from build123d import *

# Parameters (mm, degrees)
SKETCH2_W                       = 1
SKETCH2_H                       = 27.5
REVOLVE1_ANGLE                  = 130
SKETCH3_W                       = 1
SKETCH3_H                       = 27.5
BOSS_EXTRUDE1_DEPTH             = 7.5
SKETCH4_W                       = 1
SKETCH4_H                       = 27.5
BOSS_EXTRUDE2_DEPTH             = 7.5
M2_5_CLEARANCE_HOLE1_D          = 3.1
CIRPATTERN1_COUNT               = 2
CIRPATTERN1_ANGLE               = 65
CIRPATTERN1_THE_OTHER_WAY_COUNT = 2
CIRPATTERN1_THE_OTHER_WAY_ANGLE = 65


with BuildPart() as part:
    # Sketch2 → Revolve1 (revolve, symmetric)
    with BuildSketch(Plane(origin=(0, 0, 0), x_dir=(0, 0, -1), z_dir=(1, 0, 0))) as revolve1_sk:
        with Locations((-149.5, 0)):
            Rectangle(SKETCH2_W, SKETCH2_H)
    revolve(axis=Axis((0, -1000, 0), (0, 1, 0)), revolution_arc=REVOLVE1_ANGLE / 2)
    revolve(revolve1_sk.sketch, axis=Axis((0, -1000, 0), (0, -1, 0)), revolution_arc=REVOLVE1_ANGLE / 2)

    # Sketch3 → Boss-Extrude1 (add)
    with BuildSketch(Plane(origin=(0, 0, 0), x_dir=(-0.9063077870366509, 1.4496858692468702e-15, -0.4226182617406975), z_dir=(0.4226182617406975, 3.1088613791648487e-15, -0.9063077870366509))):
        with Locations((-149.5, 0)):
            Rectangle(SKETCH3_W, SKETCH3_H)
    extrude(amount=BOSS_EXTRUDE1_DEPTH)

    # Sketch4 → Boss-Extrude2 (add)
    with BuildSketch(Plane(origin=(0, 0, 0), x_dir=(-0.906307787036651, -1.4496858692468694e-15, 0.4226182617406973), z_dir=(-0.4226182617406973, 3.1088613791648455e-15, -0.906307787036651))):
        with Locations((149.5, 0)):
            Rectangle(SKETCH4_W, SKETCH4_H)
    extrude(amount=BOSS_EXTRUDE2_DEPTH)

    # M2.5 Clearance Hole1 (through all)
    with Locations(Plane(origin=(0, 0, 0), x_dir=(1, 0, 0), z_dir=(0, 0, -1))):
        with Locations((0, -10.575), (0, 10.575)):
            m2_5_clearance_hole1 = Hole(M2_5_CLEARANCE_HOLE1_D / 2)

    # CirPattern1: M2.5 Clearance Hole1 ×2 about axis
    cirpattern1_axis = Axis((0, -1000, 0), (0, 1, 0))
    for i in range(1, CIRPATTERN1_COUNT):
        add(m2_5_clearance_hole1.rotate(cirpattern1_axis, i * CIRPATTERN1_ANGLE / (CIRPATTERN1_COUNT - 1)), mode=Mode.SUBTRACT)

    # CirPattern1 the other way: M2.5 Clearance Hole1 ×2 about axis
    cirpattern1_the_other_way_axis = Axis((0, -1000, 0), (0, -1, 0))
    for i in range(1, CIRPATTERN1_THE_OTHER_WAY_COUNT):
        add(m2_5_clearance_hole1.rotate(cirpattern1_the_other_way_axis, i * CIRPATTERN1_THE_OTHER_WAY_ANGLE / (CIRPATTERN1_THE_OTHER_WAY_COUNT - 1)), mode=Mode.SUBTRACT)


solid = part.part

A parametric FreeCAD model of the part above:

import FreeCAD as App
import Part
import Sketcher


def add_polygon(sketch, points):
    """Adds a closed chain of lines whose ends are joined by coincident constraints."""
    first, n = sketch.GeometryCount, len(points)
    for a, b in zip(points, points[1:] + points[:1]):
        sketch.addGeometry(Part.LineSegment(App.Vector(*a, 0), App.Vector(*b, 0)), False)
    for i in range(n):
        sketch.addConstraint(Sketcher.Constraint("Coincident", first + i, 2, first + (i + 1) % n, 1))

doc = App.newDocument("Part")
body = doc.addObject("PartDesign::Body", "Body")

sketch1 = body.newObject("Sketcher::SketchObject", "Sketch")
sketch1.AttachmentSupport = (doc.getObject("YZ_Plane"), [""])
sketch1.MapMode = "FlatFace"
add_polygon(sketch1, [(13.8, 150), (-13.8, 150), (-13.8, 149), (13.8, 149)])
sketch1.addConstraint([
    Sketcher.Constraint("Horizontal", 0),
    Sketcher.Constraint("Vertical", 1),
    Sketcher.Constraint("Horizontal", 2),
    Sketcher.Constraint("Vertical", 3),
    Sketcher.Constraint("DistanceY", 1, 2, 1, 1, 1.0),
    Sketcher.Constraint("DistanceX", 0, 2, 0, 1, 27.5),
    Sketcher.Constraint("DistanceY", -1, 1, 0, 2, 150.0),
    Sketcher.Constraint("DistanceX", 0, 2, -1, 1, 13.75),
])
revolution = body.newObject("PartDesign::Revolution", "Revolution")
revolution.Profile = sketch1
revolution.ReferenceAxis = (sketch1, ["H_Axis"])
revolution.Angle = 65

sketch2 = body.newObject("Sketcher::SketchObject", "Sketch001")
sketch2.AttachmentSupport = (doc.getObject("YZ_Plane"), [""])
sketch2.MapMode = "FlatFace"
add_polygon(sketch2, [(13.8, 150), (-13.8, 150), (-13.8, 149), (13.8, 149)])
sketch2.addConstraint([
    Sketcher.Constraint("Horizontal", 0),
    Sketcher.Constraint("Vertical", 1),
    Sketcher.Constraint("Horizontal", 2),
    Sketcher.Constraint("Vertical", 3),
    Sketcher.Constraint("DistanceY", 1, 2, 1, 1, 1.0),
    Sketcher.Constraint("DistanceX", 0, 2, 0, 1, 27.5),
    Sketcher.Constraint("DistanceY", -1, 1, 0, 2, 150.0),
    Sketcher.Constraint("DistanceX", 0, 2, -1, 1, 13.75),
])
revolution2 = body.newObject("PartDesign::Revolution", "Revolution001")
revolution2.Profile = sketch2
revolution2.ReferenceAxis = (sketch2, ["H_Axis"])
revolution2.Angle = 65
revolution2.Reversed = True

sketch3 = body.newObject("Sketcher::SketchObject", "Sketch002")
sketch3.Placement = App.Placement(App.Vector(0, 0, 0), App.Rotation(App.Vector(-0.906307787, 0, -0.422618262), App.Vector(0, 1, 0), App.Vector(0.422618262, 0, -0.906307787), "ZXY"))
add_polygon(sketch3, [(-150, 13.8), (-150, -13.8), (-149, -13.8), (-149, 13.8)])
sketch3.addConstraint([
    Sketcher.Constraint("Vertical", 0),
    Sketcher.Constraint("Horizontal", 1),
    Sketcher.Constraint("Vertical", 2),
    Sketcher.Constraint("Horizontal", 3),
    Sketcher.Constraint("DistanceX", 1, 1, 1, 2, 1.0),
    Sketcher.Constraint("DistanceY", 0, 2, 0, 1, 27.5),
    Sketcher.Constraint("DistanceX", 0, 2, -1, 1, 150.0),
    Sketcher.Constraint("DistanceY", 0, 2, -1, 1, 13.75),
])
pad1 = body.newObject("PartDesign::Pad", "Pad")
pad1.Profile = sketch3
pad1.Length = 7.5

sketch4 = body.newObject("Sketcher::SketchObject", "Sketch003")
sketch4.Placement = App.Placement(App.Vector(0, 0, 0), App.Rotation(App.Vector(-0.906307787, 0, 0.422618262), App.Vector(0, 1, 0), App.Vector(-0.422618262, 0, -0.906307787), "ZXY"))
add_polygon(sketch4, [(149, 13.8), (149, -13.8), (150, -13.8), (150, 13.8)])
sketch4.addConstraint([
    Sketcher.Constraint("Vertical", 0),
    Sketcher.Constraint("Horizontal", 1),
    Sketcher.Constraint("Vertical", 2),
    Sketcher.Constraint("Horizontal", 3),
    Sketcher.Constraint("DistanceX", 1, 1, 1, 2, 1.0),
    Sketcher.Constraint("DistanceY", 0, 2, 0, 1, 27.5),
    Sketcher.Constraint("DistanceX", -1, 1, 0, 2, 149.0),
    Sketcher.Constraint("DistanceY", 0, 2, -1, 1, 13.75),
])
pad2 = body.newObject("PartDesign::Pad", "Pad001")
pad2.Profile = sketch4
pad2.Length = 7.5

sketch5 = body.newObject("Sketcher::SketchObject", "Sketch004")
sketch5.AttachmentSupport = (doc.getObject("XY_Plane"), [""])
sketch5.MapMode = "FlatFace"
sketch5.addGeometry([
    Part.Circle(App.Vector(0, 10.6, 0), App.Vector(0, 0, 1), 1.6),
    Part.Circle(App.Vector(0, -10.6, 0), App.Vector(0, 0, 1), 1.6),
], False)
sketch5.addConstraint([
    Sketcher.Constraint("Equal", 0, 1),
    Sketcher.Constraint("Symmetric", 0, 3, 1, 3, -1, 1),
    Sketcher.Constraint("PointOnObject", 0, 3, -2),
    Sketcher.Constraint("Diameter", 0, 3.1),
    Sketcher.Constraint("DistanceY", 1, 3, 0, 3, 21.15),
])
doc.recompute()
hole = body.newObject("PartDesign::Hole", "Hole")
hole.Profile = sketch5
hole.ThreadType = "None"
hole.Diameter = 3.1
hole.DepthType = "ThroughAll"
hole.Reversed = True
doc.recompute()

polarpattern = body.newObject("PartDesign::PolarPattern", "PolarPattern")
polarpattern.Originals = [hole]
polarpattern.Axis = (doc.getObject("Y_Axis"), [""])
polarpattern.Angle = 65
polarpattern.Occurrences = 2
body.Tip = polarpattern
doc.recompute()

polarpattern2 = body.newObject("PartDesign::PolarPattern", "PolarPattern001")
polarpattern2.Originals = [hole]
polarpattern2.Axis = (doc.getObject("Y_Axis"), [""])
polarpattern2.Angle = 65
polarpattern2.Occurrences = 2
polarpattern2.Reversed = True
body.Tip = polarpattern2

doc.recompute()
